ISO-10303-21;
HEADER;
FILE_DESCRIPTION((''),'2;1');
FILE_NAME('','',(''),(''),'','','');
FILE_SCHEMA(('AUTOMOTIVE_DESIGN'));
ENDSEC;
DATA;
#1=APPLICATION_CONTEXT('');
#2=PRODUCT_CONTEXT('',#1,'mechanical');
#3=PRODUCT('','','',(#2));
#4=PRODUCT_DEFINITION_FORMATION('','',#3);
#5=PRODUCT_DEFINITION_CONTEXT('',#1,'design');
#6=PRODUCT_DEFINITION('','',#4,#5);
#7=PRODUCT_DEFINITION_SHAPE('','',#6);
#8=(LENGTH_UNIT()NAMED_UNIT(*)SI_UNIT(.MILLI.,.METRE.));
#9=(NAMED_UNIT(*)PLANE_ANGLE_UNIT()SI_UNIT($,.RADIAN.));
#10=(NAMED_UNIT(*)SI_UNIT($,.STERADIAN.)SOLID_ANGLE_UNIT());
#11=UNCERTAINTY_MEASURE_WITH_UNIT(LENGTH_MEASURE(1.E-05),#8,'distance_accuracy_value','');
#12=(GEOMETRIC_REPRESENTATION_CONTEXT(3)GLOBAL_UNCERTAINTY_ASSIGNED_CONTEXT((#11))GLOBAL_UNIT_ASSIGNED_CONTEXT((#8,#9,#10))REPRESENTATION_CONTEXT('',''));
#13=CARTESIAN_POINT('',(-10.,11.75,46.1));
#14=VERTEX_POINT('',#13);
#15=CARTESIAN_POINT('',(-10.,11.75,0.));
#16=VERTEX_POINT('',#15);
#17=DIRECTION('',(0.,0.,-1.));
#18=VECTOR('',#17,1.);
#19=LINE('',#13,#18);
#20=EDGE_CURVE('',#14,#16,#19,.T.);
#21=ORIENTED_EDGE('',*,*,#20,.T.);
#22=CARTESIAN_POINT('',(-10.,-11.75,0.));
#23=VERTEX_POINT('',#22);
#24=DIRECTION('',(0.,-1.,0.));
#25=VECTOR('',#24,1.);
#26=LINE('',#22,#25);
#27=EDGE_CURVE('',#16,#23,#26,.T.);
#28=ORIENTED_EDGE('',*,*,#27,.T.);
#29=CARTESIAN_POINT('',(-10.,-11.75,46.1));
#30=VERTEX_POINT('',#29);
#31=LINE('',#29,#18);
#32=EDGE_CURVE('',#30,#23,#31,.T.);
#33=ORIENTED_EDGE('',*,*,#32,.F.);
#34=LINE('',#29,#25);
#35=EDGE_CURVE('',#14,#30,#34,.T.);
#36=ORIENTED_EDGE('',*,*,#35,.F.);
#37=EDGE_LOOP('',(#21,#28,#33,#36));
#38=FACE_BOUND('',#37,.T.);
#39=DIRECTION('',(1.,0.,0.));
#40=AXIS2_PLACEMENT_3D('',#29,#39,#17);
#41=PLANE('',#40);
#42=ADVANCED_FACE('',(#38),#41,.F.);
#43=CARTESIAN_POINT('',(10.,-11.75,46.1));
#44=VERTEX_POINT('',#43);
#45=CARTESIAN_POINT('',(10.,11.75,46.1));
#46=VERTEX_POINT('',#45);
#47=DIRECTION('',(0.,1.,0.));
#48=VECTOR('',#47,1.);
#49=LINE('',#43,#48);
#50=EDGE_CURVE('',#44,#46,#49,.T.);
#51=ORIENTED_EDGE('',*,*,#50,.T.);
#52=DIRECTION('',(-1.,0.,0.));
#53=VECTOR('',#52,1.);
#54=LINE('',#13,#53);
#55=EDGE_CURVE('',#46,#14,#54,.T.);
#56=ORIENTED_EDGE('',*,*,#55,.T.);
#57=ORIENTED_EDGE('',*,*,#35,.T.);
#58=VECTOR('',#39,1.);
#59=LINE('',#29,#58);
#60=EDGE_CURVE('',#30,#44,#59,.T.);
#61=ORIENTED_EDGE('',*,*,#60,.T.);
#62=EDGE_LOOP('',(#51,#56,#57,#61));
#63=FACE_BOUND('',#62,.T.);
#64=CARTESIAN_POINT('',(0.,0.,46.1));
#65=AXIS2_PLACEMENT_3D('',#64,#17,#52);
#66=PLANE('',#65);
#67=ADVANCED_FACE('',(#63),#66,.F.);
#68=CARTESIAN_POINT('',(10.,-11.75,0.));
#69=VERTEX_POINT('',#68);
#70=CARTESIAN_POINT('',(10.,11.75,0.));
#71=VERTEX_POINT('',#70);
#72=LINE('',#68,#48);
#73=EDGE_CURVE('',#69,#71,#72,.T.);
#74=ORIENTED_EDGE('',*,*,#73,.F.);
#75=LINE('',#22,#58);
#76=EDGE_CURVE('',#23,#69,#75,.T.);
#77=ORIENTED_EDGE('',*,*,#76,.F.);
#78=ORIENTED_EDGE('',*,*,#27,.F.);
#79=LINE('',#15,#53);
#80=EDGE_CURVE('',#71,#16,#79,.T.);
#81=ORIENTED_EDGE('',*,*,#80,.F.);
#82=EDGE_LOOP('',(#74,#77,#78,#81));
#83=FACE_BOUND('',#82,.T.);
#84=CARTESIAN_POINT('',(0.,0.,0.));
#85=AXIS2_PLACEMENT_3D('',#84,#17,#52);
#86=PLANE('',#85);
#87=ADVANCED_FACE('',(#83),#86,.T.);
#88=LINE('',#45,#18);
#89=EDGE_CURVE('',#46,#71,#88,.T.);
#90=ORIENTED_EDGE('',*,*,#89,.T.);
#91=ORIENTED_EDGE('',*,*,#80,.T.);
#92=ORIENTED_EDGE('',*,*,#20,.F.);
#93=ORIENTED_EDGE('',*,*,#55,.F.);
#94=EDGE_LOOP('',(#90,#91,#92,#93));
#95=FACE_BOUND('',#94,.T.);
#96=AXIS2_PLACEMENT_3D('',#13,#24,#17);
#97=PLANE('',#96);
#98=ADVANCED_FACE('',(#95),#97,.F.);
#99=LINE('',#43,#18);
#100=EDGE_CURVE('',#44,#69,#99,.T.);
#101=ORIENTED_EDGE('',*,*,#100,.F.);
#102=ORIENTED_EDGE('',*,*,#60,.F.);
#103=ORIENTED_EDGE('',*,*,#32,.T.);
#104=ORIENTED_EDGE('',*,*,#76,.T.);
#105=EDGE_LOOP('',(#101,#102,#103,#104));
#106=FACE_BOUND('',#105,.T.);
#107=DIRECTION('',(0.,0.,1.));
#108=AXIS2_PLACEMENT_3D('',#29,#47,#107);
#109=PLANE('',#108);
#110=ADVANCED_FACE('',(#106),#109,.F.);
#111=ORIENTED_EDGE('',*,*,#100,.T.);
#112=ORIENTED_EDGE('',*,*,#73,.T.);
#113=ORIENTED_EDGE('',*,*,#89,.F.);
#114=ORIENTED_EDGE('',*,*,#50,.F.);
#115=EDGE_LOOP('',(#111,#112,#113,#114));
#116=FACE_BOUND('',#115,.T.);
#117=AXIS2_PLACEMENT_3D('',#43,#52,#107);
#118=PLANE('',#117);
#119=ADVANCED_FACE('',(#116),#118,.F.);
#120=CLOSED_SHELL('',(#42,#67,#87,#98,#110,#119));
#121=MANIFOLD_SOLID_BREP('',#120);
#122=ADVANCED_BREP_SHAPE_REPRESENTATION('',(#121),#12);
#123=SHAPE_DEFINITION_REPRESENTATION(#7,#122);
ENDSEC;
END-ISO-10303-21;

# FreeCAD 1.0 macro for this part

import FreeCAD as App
import Part
import Sketcher
from FreeCAD import Vector

doc = App.newDocument("Part")
params = doc.addObject("Spreadsheet::Sheet", "Params")
for row, (alias, value) in enumerate([
    ("sketch1_width", "20 mm"),
    ("sketch1_height", "23.5 mm"),
    ("pad1_length", "46.1 mm"),
], start=1):
    params.set(f"A{row}", alias)
    params.set(f"B{row}", "=" + value)
    params.setAlias(f"B{row}", alias)

body = doc.addObject("PartDesign::Body", "Body")

# Sketch on XY plane
sketch1 = body.newObject("Sketcher::SketchObject", "Sketch")
sketch1.AttachmentSupport = (doc.getObject("XY_Plane"), [""])
sketch1.MapMode = "FlatFace"
sketch1.addGeometry([
    Part.LineSegment(Vector(-10, 11.75, 0), Vector(-10, -11.75, 0)),
    Part.LineSegment(Vector(-10, -11.75, 0), Vector(10, -11.75, 0)),
    Part.LineSegment(Vector(10, -11.75, 0), Vector(10, 11.75, 0)),
    Part.LineSegment(Vector(10, 11.75, 0), Vector(-10, 11.75, 0)),
], False)
sketch1.addConstraint([
    Sketcher.Constraint("Coincident", 0, 2, 1, 1),
    Sketcher.Constraint("Coincident", 1, 2, 2, 1),
    Sketcher.Constraint("Coincident", 2, 2, 3, 1),
    Sketcher.Constraint("Coincident", 3, 2, 0, 1),
    Sketcher.Constraint("Vertical", 0),
    Sketcher.Constraint("Horizontal", 1),
    Sketcher.Constraint("Vertical", 2),
    Sketcher.Constraint("Horizontal", 3),
    Sketcher.Constraint("Symmetric", 0, 2, 2, 2, -1, 1),
    Sketcher.Constraint("DistanceX", 1, 1, 1, 2, 20.0),
    Sketcher.Constraint("DistanceY", 0, 2, 0, 1, 23.5),
])
sketch1.setExpression("Constraints[9]", "Params.sketch1_width")
sketch1.setExpression("Constraints[10]", "Params.sketch1_height")
pad1 = body.newObject("PartDesign::Pad", "Pad")
pad1.Profile = sketch1
pad1.setExpression("Length", "Params.pad1_length")

doc.recompute()
